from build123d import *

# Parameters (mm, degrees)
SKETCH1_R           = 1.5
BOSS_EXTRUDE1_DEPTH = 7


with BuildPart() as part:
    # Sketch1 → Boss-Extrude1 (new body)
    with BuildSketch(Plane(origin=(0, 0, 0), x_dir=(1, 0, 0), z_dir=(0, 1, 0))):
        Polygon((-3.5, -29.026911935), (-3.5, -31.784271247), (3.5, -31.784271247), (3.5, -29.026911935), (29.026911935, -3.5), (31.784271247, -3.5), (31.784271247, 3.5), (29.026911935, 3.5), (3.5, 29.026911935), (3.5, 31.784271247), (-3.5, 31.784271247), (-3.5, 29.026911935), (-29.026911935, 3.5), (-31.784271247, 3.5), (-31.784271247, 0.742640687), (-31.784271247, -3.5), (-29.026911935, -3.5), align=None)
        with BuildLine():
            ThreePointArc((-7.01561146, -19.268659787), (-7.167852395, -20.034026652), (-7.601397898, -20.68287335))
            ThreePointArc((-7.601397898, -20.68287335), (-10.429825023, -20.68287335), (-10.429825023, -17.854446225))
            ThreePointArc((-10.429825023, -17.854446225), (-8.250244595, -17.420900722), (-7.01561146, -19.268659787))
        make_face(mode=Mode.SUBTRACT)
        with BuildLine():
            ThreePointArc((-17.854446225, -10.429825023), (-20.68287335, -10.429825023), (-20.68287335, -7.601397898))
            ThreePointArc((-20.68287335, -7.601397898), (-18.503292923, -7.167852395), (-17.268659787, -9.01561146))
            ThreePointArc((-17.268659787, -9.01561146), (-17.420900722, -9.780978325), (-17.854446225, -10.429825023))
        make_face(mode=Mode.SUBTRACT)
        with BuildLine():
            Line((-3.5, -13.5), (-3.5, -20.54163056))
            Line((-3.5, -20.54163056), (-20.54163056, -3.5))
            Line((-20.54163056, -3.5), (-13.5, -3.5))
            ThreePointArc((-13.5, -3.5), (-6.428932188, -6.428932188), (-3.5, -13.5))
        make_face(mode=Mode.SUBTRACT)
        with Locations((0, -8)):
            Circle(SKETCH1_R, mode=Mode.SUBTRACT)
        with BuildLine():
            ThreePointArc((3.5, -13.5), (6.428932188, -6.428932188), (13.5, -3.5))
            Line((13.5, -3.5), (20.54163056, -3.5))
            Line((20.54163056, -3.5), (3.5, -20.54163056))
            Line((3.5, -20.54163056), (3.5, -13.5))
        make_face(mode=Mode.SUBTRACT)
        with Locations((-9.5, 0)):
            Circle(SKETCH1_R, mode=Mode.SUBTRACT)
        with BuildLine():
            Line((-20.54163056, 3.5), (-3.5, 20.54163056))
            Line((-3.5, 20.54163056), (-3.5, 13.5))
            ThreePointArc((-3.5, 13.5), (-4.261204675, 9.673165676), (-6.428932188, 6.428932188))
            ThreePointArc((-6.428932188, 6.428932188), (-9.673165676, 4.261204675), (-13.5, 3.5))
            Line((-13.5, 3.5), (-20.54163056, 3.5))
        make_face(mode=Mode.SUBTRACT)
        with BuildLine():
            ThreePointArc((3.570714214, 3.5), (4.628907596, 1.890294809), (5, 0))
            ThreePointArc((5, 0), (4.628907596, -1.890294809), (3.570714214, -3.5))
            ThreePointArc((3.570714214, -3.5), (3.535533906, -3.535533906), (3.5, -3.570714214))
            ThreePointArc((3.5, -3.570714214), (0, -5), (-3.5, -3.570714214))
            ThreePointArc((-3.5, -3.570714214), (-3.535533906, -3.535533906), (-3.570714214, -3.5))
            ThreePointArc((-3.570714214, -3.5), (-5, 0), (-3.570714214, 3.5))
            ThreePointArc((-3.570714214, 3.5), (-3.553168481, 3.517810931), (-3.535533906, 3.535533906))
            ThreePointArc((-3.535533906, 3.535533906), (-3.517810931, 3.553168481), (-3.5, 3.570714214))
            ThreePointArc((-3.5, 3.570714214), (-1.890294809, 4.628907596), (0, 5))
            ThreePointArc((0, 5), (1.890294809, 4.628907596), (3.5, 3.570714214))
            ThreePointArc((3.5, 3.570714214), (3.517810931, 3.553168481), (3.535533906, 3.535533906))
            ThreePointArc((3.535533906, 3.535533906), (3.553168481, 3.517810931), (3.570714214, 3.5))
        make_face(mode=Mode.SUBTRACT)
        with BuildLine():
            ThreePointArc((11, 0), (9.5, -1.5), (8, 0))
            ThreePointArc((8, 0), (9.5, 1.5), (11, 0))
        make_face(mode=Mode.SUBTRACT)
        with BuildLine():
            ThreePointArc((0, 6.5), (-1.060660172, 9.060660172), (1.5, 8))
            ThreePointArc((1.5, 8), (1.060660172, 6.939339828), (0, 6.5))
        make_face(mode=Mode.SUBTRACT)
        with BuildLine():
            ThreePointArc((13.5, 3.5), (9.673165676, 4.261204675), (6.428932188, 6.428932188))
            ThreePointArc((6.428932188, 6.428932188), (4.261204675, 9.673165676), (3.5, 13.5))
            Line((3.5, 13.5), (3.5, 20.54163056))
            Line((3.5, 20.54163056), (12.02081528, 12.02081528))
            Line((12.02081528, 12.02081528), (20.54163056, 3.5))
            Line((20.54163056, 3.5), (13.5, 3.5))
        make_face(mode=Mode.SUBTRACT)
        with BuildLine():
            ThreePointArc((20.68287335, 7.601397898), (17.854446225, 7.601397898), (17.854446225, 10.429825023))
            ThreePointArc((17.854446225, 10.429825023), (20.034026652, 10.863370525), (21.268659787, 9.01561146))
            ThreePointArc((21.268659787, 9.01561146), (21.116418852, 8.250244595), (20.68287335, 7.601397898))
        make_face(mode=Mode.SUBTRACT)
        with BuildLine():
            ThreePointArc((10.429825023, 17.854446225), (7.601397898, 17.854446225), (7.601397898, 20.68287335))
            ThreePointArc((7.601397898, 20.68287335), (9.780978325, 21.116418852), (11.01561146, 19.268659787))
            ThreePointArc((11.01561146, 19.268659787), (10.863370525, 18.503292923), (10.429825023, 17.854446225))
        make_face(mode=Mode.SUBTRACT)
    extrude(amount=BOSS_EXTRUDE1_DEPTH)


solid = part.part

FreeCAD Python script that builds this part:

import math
import FreeCAD as App
import Part
import Sketcher


def add_polygon(sketch, points):
    """Adds a closed chain of lines whose ends are joined by coincident constraints."""
    first, n = sketch.GeometryCount, len(points)
    for a, b in zip(points, points[1:] + points[:1]):
        sketch.addGeometry(Part.LineSegment(App.Vector(*a, 0), App.Vector(*b, 0)), False)
    for i in range(n):
        sketch.addConstraint(Sketcher.Constraint("Coincident", first + i, 2, first + (i + 1) % n, 1))

doc = App.newDocument("Part")
params = doc.addObject("Spreadsheet::Sheet", "Params")
for row, (alias, value) in enumerate([
    ("sketch1_diameter", "3 mm"),
    ("sketch1_radius", "10 mm"),
    ("sketch1_radius2", "2 mm"),
    ("sketch1_radius3", "5 mm"),
    ("sketch1_width", "7 mm"),
    ("pad1_length", "7 mm"),
], start=1):
    params.set(f"A{row}", alias)
    params.set(f"B{row}", "=" + value)
    params.setAlias(f"B{row}", alias)

body = doc.addObject("PartDesign::Body", "Body")

sketch1 = body.newObject("Sketcher::SketchObject", "Sketch")
sketch1.AttachmentSupport = (doc.getObject("XZ_Plane"), [""])
sketch1.MapMode = "FlatFace"
add_polygon(sketch1, [(-3.5, 29.026912), (-3.5, 31.784271), (3.5, 31.784271), (3.5, 29.026912), (29.026912, 3.5), (31.784271, 3.5), (31.784271, -3.5), (29.026912, -3.5), (3.5, -29.026912), (3.5, -31.784271), (-3.5, -31.784271), (-3.5, -29.026912), (-29.026912, -3.5), (-31.784271, -3.5), (-31.784271, 3.5), (-29.026912, 3.5)])
sketch1.addGeometry(Part.ArcOfCircle(Part.Circle(App.Vector(-13.5, 13.5, 0), App.Vector(0, 0, 1), 10), math.radians(-90), math.radians(0)), False)
sketch1.addGeometry(Part.LineSegment(App.Vector(-3.5, 13.5, 0), App.Vector(-3.5, 20.541631, 0)), False)
sketch1.addGeometry(Part.LineSegment(App.Vector(-3.5, 20.541631, 0), App.Vector(-20.541631, 3.5, 0)), False)
sketch1.addGeometry(Part.LineSegment(App.Vector(-20.541631, 3.5, 0), App.Vector(-13.5, 3.5, 0)), False)
sketch1.addGeometry(Part.ArcOfCircle(Part.Circle(App.Vector(-9.015611, 19.26866, 0), App.Vector(0, 0, 1), 2), math.radians(-135), math.radians(0)), False)
sketch1.addGeometry(Part.ArcOfCircle(Part.Circle(App.Vector(-9.015611, 19.26866, 0), App.Vector(0, 0, 1), 2), math.radians(0), math.radians(45)), False)
sketch1.addGeometry(Part.ArcOfCircle(Part.Circle(App.Vector(-9.015611, 19.26866, 0), App.Vector(0, 0, 1), 2), math.radians(45), math.radians(225)), False)
sketch1.addGeometry(Part.ArcOfCircle(Part.Circle(App.Vector(-19.26866, 9.015611, 0), App.Vector(0, 0, 1), 2), math.radians(0), math.radians(45)), False)
sketch1.addGeometry(Part.ArcOfCircle(Part.Circle(App.Vector(-19.26866, 9.015611, 0), App.Vector(0, 0, 1), 2), math.radians(45), math.radians(225)), False)
sketch1.addGeometry(Part.ArcOfCircle(Part.Circle(App.Vector(-19.26866, 9.015611, 0), App.Vector(0, 0, 1), 2), math.radians(-135), math.radians(0)), False)
sketch1.addGeometry(Part.LineSegment(App.Vector(3.5, 20.541631, 0), App.Vector(3.5, 13.5, 0)), False)
sketch1.addGeometry(Part.ArcOfCircle(Part.Circle(App.Vector(13.5, 13.5, 0), App.Vector(0, 0, 1), 10), math.radians(180), math.radians(270)), False)
sketch1.addGeometry(Part.LineSegment(App.Vector(13.5, 3.5, 0), App.Vector(20.541631, 3.5, 0)), False)
sketch1.addGeometry(Part.LineSegment(App.Vector(20.541631, 3.5, 0), App.Vector(3.5, 20.541631, 0)), False)
sketch1.addGeometry(Part.Circle(App.Vector(0, 8, 0), App.Vector(0, 0, 1), 1.5), False)
sketch1.addGeometry(Part.Circle(App.Vector(-9.5, 0, 0), App.Vector(0, 0, 1), 1.5), False)
sketch1.addGeometry(Part.LineSegment(App.Vector(-13.5, -3.5, 0), App.Vector(-20.541631, -3.5, 0)), False)
sketch1.addGeometry(Part.LineSegment(App.Vector(-20.541631, -3.5, 0), App.Vector(-3.5, -20.541631, 0)), False)
sketch1.addGeometry(Part.LineSegment(App.Vector(-3.5, -20.541631, 0), App.Vector(-3.5, -13.5, 0)), False)
sketch1.addGeometry(Part.ArcOfCircle(Part.Circle(App.Vector(-13.5, -13.5, 0), App.Vector(0, 0, 1), 10), math.radians(0), math.radians(45)), False)
sketch1.addGeometry(Part.ArcOfCircle(Part.Circle(App.Vector(-13.5, -13.5, 0), App.Vector(0, 0, 1), 10), math.radians(45), math.radians(90)), False)
sketch1.addGeometry(Part.ArcOfCircle(Part.Circle(App.Vector(0.000006, -0.000006, 0), App.Vector(0, 0, 1), 4.999991), math.radians(-45), math.radians(-44.427003)), False)
sketch1.addGeometry(Part.ArcOfCircle(Part.Circle(App.Vector(0, 0, 0), App.Vector(0, 0, 1), 5), math.radians(-44.427004), math.radians(0)), False)
sketch1.addGeometry(Part.ArcOfCircle(Part.Circle(App.Vector(0, 0, 0), App.Vector(0, 0, 1), 5), math.radians(0), math.radians(44.427004)), False)
sketch1.addGeometry(Part.ArcOfCircle(Part.Circle(App.Vector(0.000004, 0.000004, 0), App.Vector(0, 0, 1), 4.999994), math.radians(44.427003), math.radians(45.572997)), False)
sketch1.addGeometry(Part.ArcOfCircle(Part.Circle(App.Vector(0, 0, 0), App.Vector(0, 0, 1), 5), math.radians(45.572996), math.radians(134.427004)), False)
sketch1.addGeometry(Part.ArcOfCircle(Part.Circle(App.Vector(-0.000004, 0.000004, 0), App.Vector(0, 0, 1), 4.999994), math.radians(134.427003), math.radians(135.572997)), False)
sketch1.addGeometry(Part.ArcOfCircle(Part.Circle(App.Vector(0, 0, 0), App.Vector(0, 0, 1), 5), math.radians(135.572996), math.radians(224.427004)), False)
sketch1.addGeometry(Part.ArcOfCircle(Part.Circle(App.Vector(-0.000006, -0.000006, 0), App.Vector(0, 0, 1), 4.999991), math.radians(-135.572997), math.radians(-135)), False)
sketch1.addGeometry(Part.ArcOfCircle(Part.Circle(App.Vector(-0.000006, -0.000006, 0), App.Vector(0, 0, 1), 4.999991), math.radians(-135), math.radians(-134.427003)), False)
sketch1.addGeometry(Part.ArcOfCircle(Part.Circle(App.Vector(0, 0, 0), App.Vector(0, 0, 1), 5), math.radians(-134.427004), math.radians(-90)), False)
sketch1.addGeometry(Part.ArcOfCircle(Part.Circle(App.Vector(0, 0, 0), App.Vector(0, 0, 1), 5), math.radians(-90), math.radians(-45.572996)), False)
sketch1.addGeometry(Part.ArcOfCircle(Part.Circle(App.Vector(0.000006, -0.000006, 0), App.Vector(0, 0, 1), 4.999991), math.radians(-45.572997), math.radians(-45)), False)
sketch1.addGeometry(Part.Circle(App.Vector(9.5, 0, 0), App.Vector(0, 0, 1), 1.5), False)
sketch1.addGeometry(Part.ArcOfCircle(Part.Circle(App.Vector(0, -8, 0), App.Vector(0, 0, 1), 1.5), math.radians(0), math.radians(90)), False)
sketch1.addGeometry(Part.ArcOfCircle(Part.Circle(App.Vector(0, -8, 0), App.Vector(0, 0, 1), 1.5), math.radians(90), math.radians(360)), False)
sketch1.addGeometry(Part.ArcOfCircle(Part.Circle(App.Vector(19.26866, -9.015611, 0), App.Vector(0, 0, 1), 2), math.radians(0), math.radians(45)), False)
sketch1.addGeometry(Part.ArcOfCircle(Part.Circle(App.Vector(19.26866, -9.015611, 0), App.Vector(0, 0, 1), 2), math.radians(45), math.radians(225)), False)
sketch1.addGeometry(Part.ArcOfCircle(Part.Circle(App.Vector(19.26866, -9.015611, 0), App.Vector(0, 0, 1), 2), math.radians(-135), math.radians(0)), False)
sketch1.addGeometry(Part.ArcOfCircle(Part.Circle(App.Vector(9.015611, -19.26866, 0), App.Vector(0, 0, 1), 2), math.radians(0), math.radians(45)), False)
sketch1.addGeometry(Part.ArcOfCircle(Part.Circle(App.Vector(9.015611, -19.26866, 0), App.Vector(0, 0, 1), 2), math.radians(45), math.radians(225)), False)
sketch1.addGeometry(Part.ArcOfCircle(Part.Circle(App.Vector(9.015611, -19.26866, 0), App.Vector(0, 0, 1), 2), math.radians(-135), math.radians(0)), False)
sketch1.addGeometry(Part.LineSegment(App.Vector(20.541631, -3.5, 0), App.Vector(13.5, -3.5, 0)), False)
sketch1.addGeometry(Part.ArcOfCircle(Part.Circle(App.Vector(13.5, -13.5, 0), App.Vector(0, 0, 1), 10), math.radians(90), math.radians(135)), False)
sketch1.addGeometry(Part.ArcOfCircle(Part.Circle(App.Vector(13.5, -13.5, 0), App.Vector(0, 0, 1), 10), math.radians(135), math.radians(180)), False)
sketch1.addGeometry(Part.LineSegment(App.Vector(3.5, -13.5, 0), App.Vector(3.5, -20.541631, 0)), False)
sketch1.addGeometry(Part.LineSegment(App.Vector(3.5, -20.541631, 0), App.Vector(20.541631, -3.5, 0)), False)
sketch1.addConstraint([
    Sketcher.Constraint("Tangent", 16, 2, 17, 1),
    Sketcher.Constraint("Coincident", 17, 2, 18, 1),
    Sketcher.Constraint("Coincident", 18, 2, 19, 1),
    Sketcher.Constraint("Tangent", 19, 2, 16, 1),
    Sketcher.Constraint("Tangent", 20, 2, 21, 1),
    Sketcher.Constraint("Tangent", 21, 2, 22, 1),
    Sketcher.Constraint("Tangent", 22, 2, 20, 1),
    Sketcher.Constraint("Tangent", 23, 2, 24, 1),
    Sketcher.Constraint("Tangent", 24, 2, 25, 1),
    Sketcher.Constraint("Tangent", 25, 2, 23, 1),
    Sketcher.Constraint("Tangent", 26, 2, 27, 1),
    Sketcher.Constraint("Tangent", 27, 2, 28, 1),
    Sketcher.Constraint("Coincident", 28, 2, 29, 1),
    Sketcher.Constraint("Coincident", 29, 2, 26, 1),
    Sketcher.Constraint("Coincident", 32, 2, 33, 1),
    Sketcher.Constraint("Coincident", 33, 2, 34, 1),
    Sketcher.Constraint("Tangent", 34, 2, 35, 1),
    Sketcher.Constraint("Tangent", 35, 2, 36, 1),
    Sketcher.Constraint("Tangent", 36, 2, 32, 1),
    Sketcher.Constraint("Tangent", 37, 2, 38, 1),
    Sketcher.Constraint("Tangent", 38, 2, 39, 1),
    Sketcher.Constraint("Tangent", 39, 2, 40, 1),
    Sketcher.Constraint("Tangent", 40, 2, 41, 1),
    Sketcher.Constraint("Tangent", 41, 2, 42, 1),
    Sketcher.Constraint("Tangent", 42, 2, 43, 1),
    Sketcher.Constraint("Tangent", 43, 2, 44, 1),
    Sketcher.Constraint("Tangent", 44, 2, 45, 1),
    Sketcher.Constraint("Tangent", 45, 2, 46, 1),
    Sketcher.Constraint("Tangent", 46, 2, 47, 1),
    Sketcher.Constraint("Tangent", 47, 2, 48, 1),
    Sketcher.Constraint("Tangent", 48, 2, 37, 1),
    Sketcher.Constraint("Tangent", 50, 1, 51, 2),
    Sketcher.Constraint("Coincident", 51, 1, 50, 2),
    Sketcher.Constraint("Tangent", 52, 2, 53, 1),
    Sketcher.Constraint("Tangent", 53, 2, 54, 1),
    Sketcher.Constraint("Tangent", 54, 2, 52, 1),
    Sketcher.Constraint("Tangent", 55, 2, 56, 1),
    Sketcher.Constraint("Tangent", 56, 2, 57, 1),
    Sketcher.Constraint("Tangent", 57, 2, 55, 1),
    Sketcher.Constraint("Tangent", 58, 2, 59, 1),
    Sketcher.Constraint("Tangent", 59, 2, 60, 1),
    Sketcher.Constraint("Tangent", 60, 2, 61, 1),
    Sketcher.Constraint("Coincident", 61, 2, 62, 1),
    Sketcher.Constraint("Coincident", 62, 2, 58, 1),
    Sketcher.Constraint("Vertical", 0),
    Sketcher.Constraint("Horizontal", 1),
    Sketcher.Constraint("Vertical", 2),
    Sketcher.Constraint("Horizontal", 4),
    Sketcher.Constraint("Vertical", 5),
    Sketcher.Constraint("Horizontal", 6),
    Sketcher.Constraint("Vertical", 8),
    Sketcher.Constraint("Horizontal", 9),
    Sketcher.Constraint("Vertical", 10),
    Sketcher.Constraint("Horizontal", 12),
    Sketcher.Constraint("Vertical", 13),
    Sketcher.Constraint("Horizontal", 14),
    Sketcher.Constraint("Vertical", 17),
    Sketcher.Constraint("Horizontal", 19),
    Sketcher.Constraint("Vertical", 26),
    Sketcher.Constraint("Horizontal", 28),
    Sketcher.Constraint("Horizontal", 32),
    Sketcher.Constraint("Vertical", 34),
    Sketcher.Constraint("Horizontal", 58),
    Sketcher.Constraint("Vertical", 61),
    Sketcher.Constraint("Coincident", 37, 3, -1, 1),
    Sketcher.Constraint("Coincident", 39, 3, -1, 1),
    Sketcher.Constraint("Coincident", 41, 3, -1, 1),
    Sketcher.Constraint("Coincident", 43, 3, -1, 1),
    Sketcher.Constraint("Coincident", 45, 3, -1, 1),
    Sketcher.Constraint("Equal", 22, 23),
    Sketcher.Constraint("Equal", 16, 27),
    Sketcher.Constraint("Equal", 30, 31),
    Sketcher.Constraint("Equal", 27, 35),
    Sketcher.Constraint("Equal", 35, 36),
    Sketcher.Constraint("Equal", 43, 46),
    Sketcher.Constraint("Equal", 31, 49),
    Sketcher.Constraint("Equal", 49, 50),
    Sketcher.Constraint("Equal", 25, 52),
    Sketcher.Constraint("Equal", 54, 55),
    Sketcher.Constraint("Equal", 36, 59),
    Sketcher.Constraint("Equal", 59, 60),
    Sketcher.Constraint("Symmetric", 27, 3, 35, 3, -1, 1),
    Sketcher.Constraint("Symmetric", 31, 3, 49, 3, -1, 1),
    Sketcher.Constraint("Symmetric", 30, 3, 50, 3, -1, 1),
    Sketcher.Constraint("Symmetric", 23, 3, 52, 3, -1, 1),
    Sketcher.Constraint("Symmetric", 20, 3, 55, 3, -1, 1),
    Sketcher.Constraint("Symmetric", 16, 3, 59, 3, -1, 1),
    Sketcher.Constraint("Symmetric", 0, 2, 8, 2, -1, 1),
    Sketcher.Constraint("Symmetric", 2, 2, 10, 2, -1, 1),
    Sketcher.Constraint("Symmetric", 3, 2, 11, 2, -1, 1),
    Sketcher.Constraint("Symmetric", 5, 2, 13, 2, -1, 1),
    Sketcher.Constraint("Symmetric", 16, 3, 27, 3, -2),
    Sketcher.Constraint("Symmetric", 7, 2, 10, 2, -2),
    Sketcher.Constraint("Symmetric", 6, 2, 11, 2, -2),
    Sketcher.Constraint("PointOnObject", 30, 3, -2),
    Sketcher.Constraint("PointOnObject", 31, 3, -1),
    Sketcher.Constraint("PointOnObject", 38, 2, -1),
    Sketcher.Constraint("PointOnObject", 46, 2, -2),
    Sketcher.Constraint("PointOnObject", 51, 1, -2),
    Sketcher.Constraint("Perpendicular", 3, 7),
    Sketcher.Constraint("Perpendicular", 11, 15),
    Sketcher.Constraint("Parallel", 15, 18),
    Sketcher.Constraint("Perpendicular", 18, 29),
    Sketcher.Constraint("Parallel", 29, 33),
    Sketcher.Constraint("Perpendicular", 33, 62),
    Sketcher.Constraint("Horizontal", 2, 2, 15, 2),
    Sketcher.Constraint("Horizontal", 14, 2, 18, 2),
    Sketcher.Constraint("Horizontal", 22, 3, 20, 2),
    Sketcher.Constraint("Horizontal", 24, 3, 25, 2),
    Sketcher.Constraint("Horizontal", 17, 2, 29, 2),
    Sketcher.Constraint("Horizontal", 36, 2, 37, 2),
    Sketcher.Constraint("Horizontal", 28, 2, 39, 2),
    Sketcher.Constraint("Horizontal", 40, 2, 41, 2),
    Sketcher.Constraint("Horizontal", 39, 2, 42, 2),
    Sketcher.Constraint("Horizontal", 37, 2, 43, 2),
    Sketcher.Constraint("Horizontal", 45, 2, 47, 2),
    Sketcher.Constraint("Horizontal", 44, 2, 48, 2),
    Sketcher.Constraint("Horizontal", 51, 3, 50, 1),
    Sketcher.Constraint("Horizontal", 53, 3, 54, 2),
    Sketcher.Constraint("Horizontal", 56, 3, 57, 2),
    Sketcher.Constraint("Horizontal", 35, 2, 59, 2),
    Sketcher.Constraint("Horizontal", 33, 2, 61, 2),
    Sketcher.Constraint("Vertical", 15, 2, 16, 2),
    Sketcher.Constraint("Vertical", 18, 2, 32, 2),
    Sketcher.Constraint("Vertical", 29, 2, 40, 2),
    Sketcher.Constraint("Vertical", 41, 2, 45, 2),
    Sketcher.Constraint("Equal", 14, 0),
    Sketcher.Constraint("Equal", 9, 5),
    Sketcher.Constraint("Diameter", 30, 3.0),
    Sketcher.Constraint("Radius", 16, 10.0),
    Sketcher.Constraint("Radius", 20, 2.0),
    Sketcher.Constraint("Radius", 38, 5.0),
    Sketcher.Constraint("DistanceX", 1, 1, 1, 2, 7.0),
    Sketcher.Constraint("DistanceY", -1, 1, 30, 3, 8.0),
    Sketcher.Constraint("DistanceX", 31, 3, -1, 1, 9.5),
    Sketcher.Constraint("DistanceX", 4, 1, 4, 2, 2.757359),
    Sketcher.Constraint("DistanceX", 19, 1, 19, 2, 7.041631),
    Sketcher.Constraint("DistanceX", 20, 3, -1, 1, 9.015611),
    Sketcher.Constraint("DistanceY", -1, 1, 20, 3, 19.26866),
    Sketcher.Constraint("DistanceX", 23, 3, -1, 1, 19.26866),
    Sketcher.Constraint("DistanceY", -1, 1, 23, 3, 9.015611),
    Sketcher.Constraint("DistanceY", -1, 1, 0, 2, 31.784271),
    Sketcher.Constraint("DistanceX", 21, 2, -1, 1, 7.601398),
    Sketcher.Constraint("DistanceX", 22, 2, -1, 1, 10.429825),
    Sketcher.Constraint("DistanceX", 23, 2, -1, 1, 17.854446),
    Sketcher.Constraint("DistanceX", 24, 2, -1, 1, 20.682873),
    Sketcher.Constraint("DistanceX", 35, 2, -1, 1, 6.428932),
    Sketcher.Constraint("DistanceX", 44, 2, -1, 1, 3.535534),
    Sketcher.Constraint("DistanceX", -1, 1, 52, 2, 20.682873),
    Sketcher.Constraint("DistanceX", -1, 1, 53, 2, 17.854446),
    Sketcher.Constraint("DistanceX", -1, 1, 55, 2, 10.429825),
    Sketcher.Constraint("DistanceX", -1, 1, 56, 2, 7.601398),
])
sketch1.setExpression("Constraints[144]", "Params.sketch1_diameter")
sketch1.setExpression("Constraints[145]", "Params.sketch1_radius")
sketch1.setExpression("Constraints[146]", "Params.sketch1_radius2")
sketch1.setExpression("Constraints[147]", "Params.sketch1_radius3")
sketch1.setExpression("Constraints[148]", "Params.sketch1_width")
pad1 = body.newObject("PartDesign::Pad", "Pad")
pad1.Profile = sketch1
pad1.setExpression("Length", "Params.pad1_length")
pad1.Reversed = True

doc.recompute()
